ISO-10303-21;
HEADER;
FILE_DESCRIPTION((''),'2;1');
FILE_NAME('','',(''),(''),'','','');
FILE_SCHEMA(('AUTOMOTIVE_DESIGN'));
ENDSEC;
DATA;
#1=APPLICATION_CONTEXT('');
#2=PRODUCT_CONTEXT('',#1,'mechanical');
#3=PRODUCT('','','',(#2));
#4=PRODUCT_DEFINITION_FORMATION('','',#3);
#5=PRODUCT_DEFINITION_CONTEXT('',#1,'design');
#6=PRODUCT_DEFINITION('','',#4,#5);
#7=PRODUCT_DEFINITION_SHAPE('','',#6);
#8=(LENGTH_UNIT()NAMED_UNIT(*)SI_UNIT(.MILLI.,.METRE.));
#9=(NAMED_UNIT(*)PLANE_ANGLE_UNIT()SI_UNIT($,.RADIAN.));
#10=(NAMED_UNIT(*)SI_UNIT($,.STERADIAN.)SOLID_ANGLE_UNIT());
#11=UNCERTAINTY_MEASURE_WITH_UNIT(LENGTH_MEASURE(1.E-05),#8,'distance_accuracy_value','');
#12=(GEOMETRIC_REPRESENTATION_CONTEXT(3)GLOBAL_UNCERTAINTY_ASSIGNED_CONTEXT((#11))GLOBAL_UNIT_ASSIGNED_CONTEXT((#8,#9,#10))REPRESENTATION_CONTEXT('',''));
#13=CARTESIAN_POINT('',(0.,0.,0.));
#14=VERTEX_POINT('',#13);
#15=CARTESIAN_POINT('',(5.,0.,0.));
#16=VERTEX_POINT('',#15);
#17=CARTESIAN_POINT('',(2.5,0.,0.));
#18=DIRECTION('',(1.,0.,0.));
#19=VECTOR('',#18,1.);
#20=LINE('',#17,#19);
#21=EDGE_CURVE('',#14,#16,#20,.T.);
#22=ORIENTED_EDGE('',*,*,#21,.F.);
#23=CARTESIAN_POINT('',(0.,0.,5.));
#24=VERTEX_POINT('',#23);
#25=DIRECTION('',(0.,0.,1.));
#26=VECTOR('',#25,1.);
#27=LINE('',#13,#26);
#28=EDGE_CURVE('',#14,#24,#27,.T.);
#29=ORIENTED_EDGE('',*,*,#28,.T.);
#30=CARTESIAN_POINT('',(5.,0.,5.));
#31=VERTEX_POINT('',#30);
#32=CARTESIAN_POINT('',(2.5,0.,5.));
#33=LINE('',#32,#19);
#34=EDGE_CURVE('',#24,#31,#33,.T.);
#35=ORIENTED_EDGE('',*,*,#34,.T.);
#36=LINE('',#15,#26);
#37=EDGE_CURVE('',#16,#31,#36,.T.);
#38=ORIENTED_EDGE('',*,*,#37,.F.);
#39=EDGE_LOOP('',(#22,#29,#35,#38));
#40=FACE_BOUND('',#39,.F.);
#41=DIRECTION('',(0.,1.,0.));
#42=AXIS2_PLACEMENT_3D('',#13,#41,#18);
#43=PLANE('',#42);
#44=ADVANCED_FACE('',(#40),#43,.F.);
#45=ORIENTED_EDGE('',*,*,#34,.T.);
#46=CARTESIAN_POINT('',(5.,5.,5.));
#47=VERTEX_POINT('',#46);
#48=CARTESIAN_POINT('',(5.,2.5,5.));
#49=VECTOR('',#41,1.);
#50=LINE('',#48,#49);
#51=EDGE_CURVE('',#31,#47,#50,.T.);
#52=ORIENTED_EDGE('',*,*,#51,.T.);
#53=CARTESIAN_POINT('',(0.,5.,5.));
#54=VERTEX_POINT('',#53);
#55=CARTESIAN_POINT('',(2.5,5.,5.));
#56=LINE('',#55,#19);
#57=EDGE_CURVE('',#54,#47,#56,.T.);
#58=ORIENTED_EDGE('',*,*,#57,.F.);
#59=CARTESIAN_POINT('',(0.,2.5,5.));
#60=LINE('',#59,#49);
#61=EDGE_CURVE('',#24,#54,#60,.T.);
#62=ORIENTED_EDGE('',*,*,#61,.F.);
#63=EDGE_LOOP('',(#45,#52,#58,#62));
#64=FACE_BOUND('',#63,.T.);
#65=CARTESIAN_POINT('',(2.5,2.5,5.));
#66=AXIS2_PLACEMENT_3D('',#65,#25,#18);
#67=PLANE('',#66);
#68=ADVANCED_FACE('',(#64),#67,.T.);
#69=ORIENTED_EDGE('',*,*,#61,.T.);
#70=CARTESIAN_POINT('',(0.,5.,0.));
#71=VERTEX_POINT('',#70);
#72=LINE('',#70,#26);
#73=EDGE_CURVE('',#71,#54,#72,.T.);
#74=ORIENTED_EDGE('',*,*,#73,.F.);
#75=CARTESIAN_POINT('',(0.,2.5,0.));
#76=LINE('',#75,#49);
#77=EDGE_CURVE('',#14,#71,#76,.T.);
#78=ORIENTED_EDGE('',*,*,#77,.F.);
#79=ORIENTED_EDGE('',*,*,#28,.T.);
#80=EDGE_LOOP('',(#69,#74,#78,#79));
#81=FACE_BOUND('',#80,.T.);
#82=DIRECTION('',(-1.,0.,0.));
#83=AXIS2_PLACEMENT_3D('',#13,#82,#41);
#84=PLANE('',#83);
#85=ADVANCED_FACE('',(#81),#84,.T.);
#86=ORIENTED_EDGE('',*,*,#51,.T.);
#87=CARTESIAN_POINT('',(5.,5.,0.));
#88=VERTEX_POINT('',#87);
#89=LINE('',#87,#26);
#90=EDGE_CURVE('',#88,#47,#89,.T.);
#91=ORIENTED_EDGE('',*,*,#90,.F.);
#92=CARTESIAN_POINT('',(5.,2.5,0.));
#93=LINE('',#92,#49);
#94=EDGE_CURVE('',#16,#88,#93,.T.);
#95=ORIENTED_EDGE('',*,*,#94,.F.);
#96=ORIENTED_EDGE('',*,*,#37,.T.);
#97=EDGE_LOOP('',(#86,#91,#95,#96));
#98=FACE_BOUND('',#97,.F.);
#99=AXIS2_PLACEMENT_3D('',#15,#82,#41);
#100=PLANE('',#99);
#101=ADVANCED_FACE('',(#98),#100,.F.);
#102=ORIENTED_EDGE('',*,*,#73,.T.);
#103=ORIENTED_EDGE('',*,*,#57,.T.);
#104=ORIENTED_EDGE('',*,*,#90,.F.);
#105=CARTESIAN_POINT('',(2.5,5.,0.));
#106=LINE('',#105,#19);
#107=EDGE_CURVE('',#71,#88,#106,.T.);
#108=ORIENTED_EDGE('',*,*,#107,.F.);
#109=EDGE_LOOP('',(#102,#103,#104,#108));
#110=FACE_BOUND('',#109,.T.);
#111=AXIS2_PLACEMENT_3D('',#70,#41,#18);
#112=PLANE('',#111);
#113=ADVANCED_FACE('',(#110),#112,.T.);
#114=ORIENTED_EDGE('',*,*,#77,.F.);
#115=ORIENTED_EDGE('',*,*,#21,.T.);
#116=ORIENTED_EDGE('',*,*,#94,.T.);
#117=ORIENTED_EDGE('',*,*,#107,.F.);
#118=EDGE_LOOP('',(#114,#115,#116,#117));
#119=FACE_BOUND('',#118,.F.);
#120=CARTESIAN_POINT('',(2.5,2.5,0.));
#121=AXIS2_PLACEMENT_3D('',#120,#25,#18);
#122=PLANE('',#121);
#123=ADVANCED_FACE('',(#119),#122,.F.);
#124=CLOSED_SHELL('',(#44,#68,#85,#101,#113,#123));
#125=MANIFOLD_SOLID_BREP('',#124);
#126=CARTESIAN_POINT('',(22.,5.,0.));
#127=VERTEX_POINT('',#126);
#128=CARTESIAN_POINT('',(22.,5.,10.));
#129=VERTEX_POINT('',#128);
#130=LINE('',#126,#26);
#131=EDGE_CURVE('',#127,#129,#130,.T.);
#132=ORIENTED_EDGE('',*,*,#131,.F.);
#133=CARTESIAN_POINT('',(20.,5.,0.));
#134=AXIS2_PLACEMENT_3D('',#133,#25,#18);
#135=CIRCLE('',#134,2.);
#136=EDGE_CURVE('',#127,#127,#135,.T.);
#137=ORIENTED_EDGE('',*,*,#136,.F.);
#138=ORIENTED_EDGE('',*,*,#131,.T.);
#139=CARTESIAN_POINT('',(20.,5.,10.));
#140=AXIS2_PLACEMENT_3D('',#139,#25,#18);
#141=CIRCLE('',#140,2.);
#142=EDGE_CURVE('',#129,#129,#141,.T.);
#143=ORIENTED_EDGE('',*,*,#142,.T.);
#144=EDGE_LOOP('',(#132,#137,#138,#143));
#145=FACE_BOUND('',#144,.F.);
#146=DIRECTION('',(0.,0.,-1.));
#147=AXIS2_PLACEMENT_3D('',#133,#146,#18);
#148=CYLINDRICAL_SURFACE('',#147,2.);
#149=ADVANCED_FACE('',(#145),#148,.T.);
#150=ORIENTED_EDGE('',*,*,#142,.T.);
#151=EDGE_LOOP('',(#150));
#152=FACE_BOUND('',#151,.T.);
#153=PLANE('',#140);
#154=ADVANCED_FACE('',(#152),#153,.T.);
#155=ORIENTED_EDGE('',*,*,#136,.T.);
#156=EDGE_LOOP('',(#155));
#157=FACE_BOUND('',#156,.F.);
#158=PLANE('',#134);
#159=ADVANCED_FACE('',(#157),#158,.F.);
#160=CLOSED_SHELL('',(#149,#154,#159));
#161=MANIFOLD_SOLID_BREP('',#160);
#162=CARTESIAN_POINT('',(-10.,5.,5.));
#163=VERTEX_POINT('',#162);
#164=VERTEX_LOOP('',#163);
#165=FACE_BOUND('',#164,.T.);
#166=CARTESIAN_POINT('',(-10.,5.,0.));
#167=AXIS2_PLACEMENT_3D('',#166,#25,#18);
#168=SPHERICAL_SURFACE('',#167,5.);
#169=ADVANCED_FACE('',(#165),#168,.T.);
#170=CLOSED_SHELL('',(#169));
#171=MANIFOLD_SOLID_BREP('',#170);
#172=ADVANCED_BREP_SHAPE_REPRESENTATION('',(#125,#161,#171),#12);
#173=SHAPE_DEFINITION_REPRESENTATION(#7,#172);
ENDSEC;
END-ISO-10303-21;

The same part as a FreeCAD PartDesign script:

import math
import FreeCAD as App
import Part
import Sketcher

V = App.Vector

doc = App.newDocument("Part")
body = doc.addObject("PartDesign::Body", "Body")

sketch1 = body.newObject("Sketcher::SketchObject", "Sketch")
sketch1.AttachmentSupport = (doc.getObject("XY_Plane"), [""])
sketch1.MapMode = "FlatFace"
sketch1.addGeometry(Part.Circle(V(20, 5, 0), V(0, 0, 1), 2), False)
sketch1.addConstraint(Sketcher.Constraint("Diameter", 0, 4.0))
sketch1.addConstraint(Sketcher.Constraint("DistanceX", -1, 1, 0, 3, 20.0))
sketch1.addConstraint(Sketcher.Constraint("DistanceY", -1, 1, 0, 3, 5.0))
pad1 = body.newObject("PartDesign::Pad", "Pad")
pad1.Profile = sketch1
pad1.Length = 10
body2 = doc.addObject("PartDesign::Body", "Body001")

sketch2 = body2.newObject("Sketcher::SketchObject", "Sketch001")
sketch2.AttachmentSupport = (doc.getObject("XZ_Plane001"), [""])
sketch2.MapMode = "FlatFace"
sketch2.AttachmentOffset = App.Placement(V(0, 0, -5), App.Rotation())
sketch2.addGeometry(Part.ArcOfCircle(Part.Circle(V(-10, 0, 0), V(0, 0, 1), 5), math.radians(-90), math.radians(90)), False)
sketch2.addGeometry(Part.LineSegment(V(-10, 5, 0), V(-10, -5, 0)), False)
sketch2.addGeometry(Part.LineSegment(V(-10, -5, 0), V(-10, 5, 0)), True)
sketch2.addConstraint(Sketcher.Constraint("Coincident", 0, 1, 1, 2))
sketch2.addConstraint(Sketcher.Constraint("Coincident", 1, 1, 0, 2))
sketch2.addConstraint(Sketcher.Constraint("Vertical", 1))
sketch2.addConstraint(Sketcher.Constraint("Vertical", 2))
sketch2.addConstraint(Sketcher.Constraint("Coincident", 2, 1, 0, 1))
sketch2.addConstraint(Sketcher.Constraint("PointOnObject", 0, 3, -1))
sketch2.addConstraint(Sketcher.Constraint("Equal", 1, 2))
sketch2.addConstraint(Sketcher.Constraint("Radius", 0, 5.0))
sketch2.addConstraint(Sketcher.Constraint("DistanceX", 0, 3, -1, 1, 10.0))
sketch2.addConstraint(Sketcher.Constraint("DistanceX", 0, 1, -1, 1, 10.0))
revolution = body2.newObject("PartDesign::Revolution", "Revolution")
revolution.Profile = sketch2
revolution.ReferenceAxis = (sketch2, ["Axis0"])
revolution.Angle = 360
body3 = doc.addObject("PartDesign::Body", "Body002")

sketch3 = body3.newObject("Sketcher::SketchObject", "Sketch002")
sketch3.AttachmentSupport = (doc.getObject("XY_Plane002"), [""])
sketch3.MapMode = "FlatFace"
sketch3.addGeometry(Part.LineSegment(V(0, 5, 0), V(0, 0, 0)), False)
sketch3.addGeometry(Part.LineSegment(V(0, 0, 0), V(5, 0, 0)), False)
sketch3.addGeometry(Part.LineSegment(V(5, 0, 0), V(5, 5, 0)), False)
sketch3.addGeometry(Part.LineSegment(V(5, 5, 0), V(0, 5, 0)), False)
sketch3.addConstraint(Sketcher.Constraint("Coincident", 0, 2, 1, 1))
sketch3.addConstraint(Sketcher.Constraint("Coincident", 1, 2, 2, 1))
sketch3.addConstraint(Sketcher.Constraint("Coincident", 2, 2, 3, 1))
sketch3.addConstraint(Sketcher.Constraint("Coincident", 3, 2, 0, 1))
sketch3.addConstraint(Sketcher.Constraint("Vertical", 0))
sketch3.addConstraint(Sketcher.Constraint("Horizontal", 1))
sketch3.addConstraint(Sketcher.Constraint("Vertical", 2))
sketch3.addConstraint(Sketcher.Constraint("Horizontal", 3))
sketch3.addConstraint(Sketcher.Constraint("Coincident", 0, 2, -1, 1))
sketch3.addConstraint(Sketcher.Constraint("Equal", 3, 0))
sketch3.addConstraint(Sketcher.Constraint("DistanceX", 1, 1, 1, 2, 5.0))
pad2 = body3.newObject("PartDesign::Pad", "Pad001")
pad2.Profile = sketch3
pad2.Length = 5

doc.recompute()
